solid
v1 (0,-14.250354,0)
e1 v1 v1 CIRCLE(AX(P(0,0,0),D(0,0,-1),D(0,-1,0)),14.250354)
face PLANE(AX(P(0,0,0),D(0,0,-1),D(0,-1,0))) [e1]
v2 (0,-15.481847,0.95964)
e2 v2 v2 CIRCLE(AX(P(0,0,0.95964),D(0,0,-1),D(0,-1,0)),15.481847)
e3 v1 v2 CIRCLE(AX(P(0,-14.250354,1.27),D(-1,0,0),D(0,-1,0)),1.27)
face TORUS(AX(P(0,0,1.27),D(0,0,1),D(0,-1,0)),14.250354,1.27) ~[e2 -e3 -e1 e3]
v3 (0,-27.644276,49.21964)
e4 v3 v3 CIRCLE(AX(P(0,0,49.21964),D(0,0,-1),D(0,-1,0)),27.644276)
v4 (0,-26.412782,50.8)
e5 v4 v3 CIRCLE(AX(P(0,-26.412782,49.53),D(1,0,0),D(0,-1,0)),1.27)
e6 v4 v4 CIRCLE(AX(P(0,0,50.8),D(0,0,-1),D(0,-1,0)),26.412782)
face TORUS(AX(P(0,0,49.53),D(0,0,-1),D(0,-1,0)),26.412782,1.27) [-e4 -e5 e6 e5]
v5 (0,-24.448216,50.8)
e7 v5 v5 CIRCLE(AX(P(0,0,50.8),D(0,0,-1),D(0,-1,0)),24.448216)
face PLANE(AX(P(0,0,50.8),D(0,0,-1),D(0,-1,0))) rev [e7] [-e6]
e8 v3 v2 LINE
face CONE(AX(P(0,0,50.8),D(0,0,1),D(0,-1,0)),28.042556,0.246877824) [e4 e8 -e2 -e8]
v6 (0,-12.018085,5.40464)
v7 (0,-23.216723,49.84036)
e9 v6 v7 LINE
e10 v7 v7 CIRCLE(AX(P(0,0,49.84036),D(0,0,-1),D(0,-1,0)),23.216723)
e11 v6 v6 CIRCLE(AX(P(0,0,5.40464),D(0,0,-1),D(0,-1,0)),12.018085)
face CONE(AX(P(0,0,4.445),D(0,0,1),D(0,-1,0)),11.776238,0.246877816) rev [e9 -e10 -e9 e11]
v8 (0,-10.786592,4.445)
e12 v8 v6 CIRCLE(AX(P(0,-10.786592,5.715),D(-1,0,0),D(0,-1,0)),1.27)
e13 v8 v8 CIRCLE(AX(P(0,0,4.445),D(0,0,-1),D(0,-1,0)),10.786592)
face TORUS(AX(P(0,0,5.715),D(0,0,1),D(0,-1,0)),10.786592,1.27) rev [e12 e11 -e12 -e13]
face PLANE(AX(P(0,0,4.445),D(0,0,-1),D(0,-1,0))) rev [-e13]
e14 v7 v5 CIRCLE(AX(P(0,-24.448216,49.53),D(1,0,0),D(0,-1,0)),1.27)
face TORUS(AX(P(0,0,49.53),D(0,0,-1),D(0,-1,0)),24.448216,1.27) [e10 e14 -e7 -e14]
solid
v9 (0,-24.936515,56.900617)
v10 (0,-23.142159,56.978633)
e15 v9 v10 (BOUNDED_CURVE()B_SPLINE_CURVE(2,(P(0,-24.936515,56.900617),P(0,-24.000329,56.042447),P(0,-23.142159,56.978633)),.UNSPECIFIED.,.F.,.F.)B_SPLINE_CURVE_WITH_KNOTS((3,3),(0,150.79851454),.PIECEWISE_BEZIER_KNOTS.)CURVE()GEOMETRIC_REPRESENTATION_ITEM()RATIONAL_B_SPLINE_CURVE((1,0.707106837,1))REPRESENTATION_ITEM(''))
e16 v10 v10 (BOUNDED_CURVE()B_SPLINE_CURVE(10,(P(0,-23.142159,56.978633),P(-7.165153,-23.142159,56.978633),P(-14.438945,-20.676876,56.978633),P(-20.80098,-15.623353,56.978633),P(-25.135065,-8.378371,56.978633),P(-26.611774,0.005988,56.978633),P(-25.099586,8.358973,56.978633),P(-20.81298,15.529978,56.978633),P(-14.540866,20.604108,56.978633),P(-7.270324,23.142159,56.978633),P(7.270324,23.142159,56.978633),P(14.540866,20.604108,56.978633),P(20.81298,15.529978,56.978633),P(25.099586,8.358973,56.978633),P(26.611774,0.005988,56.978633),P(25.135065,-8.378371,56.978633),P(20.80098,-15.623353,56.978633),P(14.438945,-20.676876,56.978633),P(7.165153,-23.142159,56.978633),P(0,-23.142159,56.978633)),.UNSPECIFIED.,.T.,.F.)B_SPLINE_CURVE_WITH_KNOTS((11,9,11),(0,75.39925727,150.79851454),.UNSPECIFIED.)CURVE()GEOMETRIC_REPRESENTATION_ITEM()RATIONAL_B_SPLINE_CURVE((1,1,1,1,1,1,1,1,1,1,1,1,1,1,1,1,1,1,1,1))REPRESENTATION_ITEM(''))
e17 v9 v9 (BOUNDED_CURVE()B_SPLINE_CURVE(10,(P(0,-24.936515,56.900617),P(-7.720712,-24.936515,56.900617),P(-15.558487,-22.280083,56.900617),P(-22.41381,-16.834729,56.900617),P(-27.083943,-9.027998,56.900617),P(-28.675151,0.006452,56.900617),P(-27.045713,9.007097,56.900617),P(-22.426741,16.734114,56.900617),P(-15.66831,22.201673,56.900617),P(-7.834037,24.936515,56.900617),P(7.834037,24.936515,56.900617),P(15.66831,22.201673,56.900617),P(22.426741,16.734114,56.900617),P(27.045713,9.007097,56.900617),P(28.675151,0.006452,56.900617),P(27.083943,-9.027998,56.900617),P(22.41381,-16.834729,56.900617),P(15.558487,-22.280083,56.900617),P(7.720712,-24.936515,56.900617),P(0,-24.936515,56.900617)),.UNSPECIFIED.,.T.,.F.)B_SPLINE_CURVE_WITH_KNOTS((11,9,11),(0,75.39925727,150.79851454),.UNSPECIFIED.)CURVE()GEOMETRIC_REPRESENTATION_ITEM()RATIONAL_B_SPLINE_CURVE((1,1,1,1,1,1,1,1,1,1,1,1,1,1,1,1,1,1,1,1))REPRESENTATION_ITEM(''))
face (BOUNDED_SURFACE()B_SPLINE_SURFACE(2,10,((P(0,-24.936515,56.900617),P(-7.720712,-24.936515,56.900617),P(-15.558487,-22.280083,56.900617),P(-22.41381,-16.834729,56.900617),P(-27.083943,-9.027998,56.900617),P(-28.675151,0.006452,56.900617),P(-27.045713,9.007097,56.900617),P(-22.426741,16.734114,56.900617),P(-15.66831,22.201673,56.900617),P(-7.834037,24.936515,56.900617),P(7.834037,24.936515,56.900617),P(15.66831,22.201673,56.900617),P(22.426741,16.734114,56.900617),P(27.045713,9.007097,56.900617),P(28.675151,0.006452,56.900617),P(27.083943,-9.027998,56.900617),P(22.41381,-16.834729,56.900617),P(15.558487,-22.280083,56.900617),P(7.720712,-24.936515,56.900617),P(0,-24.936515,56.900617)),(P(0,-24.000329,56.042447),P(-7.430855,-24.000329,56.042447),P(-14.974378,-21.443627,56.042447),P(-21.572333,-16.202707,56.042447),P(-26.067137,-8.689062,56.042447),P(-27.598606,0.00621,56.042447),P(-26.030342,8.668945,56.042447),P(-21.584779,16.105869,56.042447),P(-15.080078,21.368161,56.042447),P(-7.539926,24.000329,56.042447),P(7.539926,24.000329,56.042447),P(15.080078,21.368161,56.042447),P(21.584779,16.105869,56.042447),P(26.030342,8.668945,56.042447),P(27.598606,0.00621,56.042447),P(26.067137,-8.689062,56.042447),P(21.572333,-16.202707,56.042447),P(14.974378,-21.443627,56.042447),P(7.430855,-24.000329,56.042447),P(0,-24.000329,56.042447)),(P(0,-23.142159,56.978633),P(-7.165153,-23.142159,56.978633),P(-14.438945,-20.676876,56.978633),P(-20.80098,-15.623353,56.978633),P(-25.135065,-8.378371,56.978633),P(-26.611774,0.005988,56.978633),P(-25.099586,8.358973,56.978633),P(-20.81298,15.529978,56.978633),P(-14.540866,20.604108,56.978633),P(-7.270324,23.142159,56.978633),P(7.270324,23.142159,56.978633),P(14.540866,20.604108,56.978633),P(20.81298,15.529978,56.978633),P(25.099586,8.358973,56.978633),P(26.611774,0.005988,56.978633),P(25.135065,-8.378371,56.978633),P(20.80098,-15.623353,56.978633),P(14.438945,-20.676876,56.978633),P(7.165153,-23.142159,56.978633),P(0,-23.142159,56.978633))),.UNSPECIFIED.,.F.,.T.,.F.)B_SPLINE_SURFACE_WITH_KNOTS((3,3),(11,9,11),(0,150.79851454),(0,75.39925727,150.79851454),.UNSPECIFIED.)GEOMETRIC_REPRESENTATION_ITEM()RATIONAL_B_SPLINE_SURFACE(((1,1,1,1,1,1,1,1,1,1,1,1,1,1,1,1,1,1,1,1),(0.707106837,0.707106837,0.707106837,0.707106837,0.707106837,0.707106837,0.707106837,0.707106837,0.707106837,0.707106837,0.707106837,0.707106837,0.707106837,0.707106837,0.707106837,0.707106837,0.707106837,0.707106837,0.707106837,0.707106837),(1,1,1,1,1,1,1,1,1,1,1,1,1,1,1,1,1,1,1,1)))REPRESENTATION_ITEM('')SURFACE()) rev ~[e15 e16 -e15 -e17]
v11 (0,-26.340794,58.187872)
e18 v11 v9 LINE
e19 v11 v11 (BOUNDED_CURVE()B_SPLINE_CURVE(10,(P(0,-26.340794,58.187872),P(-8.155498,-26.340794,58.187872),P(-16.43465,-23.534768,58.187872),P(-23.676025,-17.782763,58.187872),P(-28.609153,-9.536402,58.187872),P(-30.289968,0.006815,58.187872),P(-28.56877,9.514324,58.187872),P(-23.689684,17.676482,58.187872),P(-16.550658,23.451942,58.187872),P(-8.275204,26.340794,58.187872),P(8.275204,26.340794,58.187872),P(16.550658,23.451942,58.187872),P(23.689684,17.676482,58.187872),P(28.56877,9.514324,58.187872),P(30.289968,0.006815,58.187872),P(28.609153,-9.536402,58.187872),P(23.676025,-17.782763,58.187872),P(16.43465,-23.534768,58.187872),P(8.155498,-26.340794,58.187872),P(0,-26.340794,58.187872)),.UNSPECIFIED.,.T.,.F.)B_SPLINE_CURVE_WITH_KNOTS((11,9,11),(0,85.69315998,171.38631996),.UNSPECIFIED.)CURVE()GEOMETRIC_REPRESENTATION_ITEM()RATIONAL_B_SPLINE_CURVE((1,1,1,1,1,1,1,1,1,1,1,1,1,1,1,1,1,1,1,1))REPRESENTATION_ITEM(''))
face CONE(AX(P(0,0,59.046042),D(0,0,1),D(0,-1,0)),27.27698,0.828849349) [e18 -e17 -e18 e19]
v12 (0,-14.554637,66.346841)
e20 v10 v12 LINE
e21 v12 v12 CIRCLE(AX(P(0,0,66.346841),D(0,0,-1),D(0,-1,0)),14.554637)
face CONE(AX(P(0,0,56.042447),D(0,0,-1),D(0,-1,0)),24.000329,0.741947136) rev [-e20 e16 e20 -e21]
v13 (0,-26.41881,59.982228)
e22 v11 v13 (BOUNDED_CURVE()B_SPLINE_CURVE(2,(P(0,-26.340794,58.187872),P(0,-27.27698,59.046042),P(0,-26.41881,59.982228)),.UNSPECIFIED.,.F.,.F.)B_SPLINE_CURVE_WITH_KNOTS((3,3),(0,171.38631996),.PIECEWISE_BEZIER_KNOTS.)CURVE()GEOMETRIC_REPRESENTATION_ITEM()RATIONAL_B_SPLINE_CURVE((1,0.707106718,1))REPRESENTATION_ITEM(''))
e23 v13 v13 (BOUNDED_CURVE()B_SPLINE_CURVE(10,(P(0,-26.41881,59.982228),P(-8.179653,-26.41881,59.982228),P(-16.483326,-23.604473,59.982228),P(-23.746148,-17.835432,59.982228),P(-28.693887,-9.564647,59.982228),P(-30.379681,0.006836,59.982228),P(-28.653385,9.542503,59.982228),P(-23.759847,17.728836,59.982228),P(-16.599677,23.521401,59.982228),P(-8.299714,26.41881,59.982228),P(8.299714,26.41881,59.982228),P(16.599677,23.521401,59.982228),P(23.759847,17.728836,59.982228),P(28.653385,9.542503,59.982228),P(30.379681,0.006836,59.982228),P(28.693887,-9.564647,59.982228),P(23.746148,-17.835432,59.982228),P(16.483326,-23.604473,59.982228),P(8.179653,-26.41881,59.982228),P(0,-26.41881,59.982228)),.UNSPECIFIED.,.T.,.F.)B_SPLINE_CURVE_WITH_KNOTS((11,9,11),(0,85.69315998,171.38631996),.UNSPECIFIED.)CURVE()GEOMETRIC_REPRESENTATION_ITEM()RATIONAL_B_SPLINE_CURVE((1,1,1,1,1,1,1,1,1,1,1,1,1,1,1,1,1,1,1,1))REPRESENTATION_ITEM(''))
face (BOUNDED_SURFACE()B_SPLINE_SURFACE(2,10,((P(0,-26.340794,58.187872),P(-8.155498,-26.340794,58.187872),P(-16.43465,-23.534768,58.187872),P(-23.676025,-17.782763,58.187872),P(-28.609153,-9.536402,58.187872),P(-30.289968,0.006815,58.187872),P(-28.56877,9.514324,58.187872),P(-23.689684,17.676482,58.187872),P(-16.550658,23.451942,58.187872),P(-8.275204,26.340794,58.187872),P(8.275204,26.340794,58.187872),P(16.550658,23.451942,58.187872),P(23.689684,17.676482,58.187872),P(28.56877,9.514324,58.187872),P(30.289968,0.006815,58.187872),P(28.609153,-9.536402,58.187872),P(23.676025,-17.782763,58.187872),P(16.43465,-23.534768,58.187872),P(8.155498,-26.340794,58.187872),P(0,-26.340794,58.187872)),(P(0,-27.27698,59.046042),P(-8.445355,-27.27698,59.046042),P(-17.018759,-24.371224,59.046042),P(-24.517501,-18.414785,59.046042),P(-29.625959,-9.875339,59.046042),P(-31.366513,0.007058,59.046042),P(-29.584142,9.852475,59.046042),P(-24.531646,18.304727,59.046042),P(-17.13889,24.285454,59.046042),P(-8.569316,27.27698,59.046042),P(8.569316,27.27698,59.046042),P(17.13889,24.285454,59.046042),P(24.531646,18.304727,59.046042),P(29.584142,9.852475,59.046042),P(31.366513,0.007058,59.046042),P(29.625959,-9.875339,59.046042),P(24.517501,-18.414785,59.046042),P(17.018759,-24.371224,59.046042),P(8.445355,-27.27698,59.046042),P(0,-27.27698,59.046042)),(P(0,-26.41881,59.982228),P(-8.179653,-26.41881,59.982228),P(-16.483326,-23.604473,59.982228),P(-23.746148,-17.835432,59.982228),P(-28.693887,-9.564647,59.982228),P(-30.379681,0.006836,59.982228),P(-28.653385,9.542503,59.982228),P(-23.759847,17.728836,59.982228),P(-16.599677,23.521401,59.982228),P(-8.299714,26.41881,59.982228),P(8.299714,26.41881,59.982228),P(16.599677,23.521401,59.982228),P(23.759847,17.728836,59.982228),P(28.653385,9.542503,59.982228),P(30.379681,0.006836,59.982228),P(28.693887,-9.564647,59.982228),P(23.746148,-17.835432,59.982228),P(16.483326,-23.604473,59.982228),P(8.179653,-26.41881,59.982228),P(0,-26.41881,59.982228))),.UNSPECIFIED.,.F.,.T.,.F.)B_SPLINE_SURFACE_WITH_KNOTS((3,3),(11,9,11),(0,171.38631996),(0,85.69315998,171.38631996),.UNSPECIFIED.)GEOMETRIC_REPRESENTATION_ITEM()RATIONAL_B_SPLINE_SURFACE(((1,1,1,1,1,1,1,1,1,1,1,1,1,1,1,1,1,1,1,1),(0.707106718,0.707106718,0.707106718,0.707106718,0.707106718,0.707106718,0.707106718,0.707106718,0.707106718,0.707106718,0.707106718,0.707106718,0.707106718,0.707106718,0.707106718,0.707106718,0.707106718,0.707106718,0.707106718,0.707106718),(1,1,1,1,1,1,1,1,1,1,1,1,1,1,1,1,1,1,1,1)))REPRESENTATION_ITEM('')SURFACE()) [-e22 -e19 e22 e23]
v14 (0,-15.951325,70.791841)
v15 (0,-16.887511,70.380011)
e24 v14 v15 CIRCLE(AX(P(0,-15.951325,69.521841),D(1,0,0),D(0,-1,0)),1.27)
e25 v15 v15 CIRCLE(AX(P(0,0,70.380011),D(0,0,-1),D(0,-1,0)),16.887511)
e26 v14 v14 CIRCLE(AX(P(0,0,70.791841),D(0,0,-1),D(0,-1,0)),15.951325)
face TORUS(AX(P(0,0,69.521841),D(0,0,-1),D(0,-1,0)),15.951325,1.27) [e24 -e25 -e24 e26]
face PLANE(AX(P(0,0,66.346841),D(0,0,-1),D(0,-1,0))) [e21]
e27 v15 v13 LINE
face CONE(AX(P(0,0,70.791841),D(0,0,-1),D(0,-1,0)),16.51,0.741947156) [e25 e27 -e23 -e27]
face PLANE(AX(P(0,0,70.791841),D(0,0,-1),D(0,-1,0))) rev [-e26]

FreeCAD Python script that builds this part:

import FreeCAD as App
import Part
import Sketcher
from FreeCAD import Vector
Q = App.Units.Quantity


def edges_at(feature, points):
    """Names of the edges that pass closest to the given points."""
    edges = feature.Shape.Edges
    near = lambda p: min(range(len(edges)), key=lambda i: edges[i].distToShape(Part.Vertex(*p))[0])
    return sorted({f"Edge{near(p) + 1}" for p in points})


def add_polygon(sketch, points):
    """Adds a closed chain of lines whose ends are joined by coincident constraints."""
    first, n = sketch.GeometryCount, len(points)
    for a, b in zip(points, points[1:] + points[:1]):
        sketch.addGeometry(Part.LineSegment(App.Vector(*a, 0), App.Vector(*b, 0)), False)
    for i in range(n):
        sketch.addConstraint(Sketcher.Constraint("Coincident", first + i, 2, first + (i + 1) % n, 1))

doc = App.newDocument("Part")
body = doc.addObject("PartDesign::Body", "Body")
body.AllowCompound = True

sketch1 = body.newObject("Sketcher::SketchObject", "Sketch")
sketch1.AttachmentSupport = (doc.getObject("YZ_Plane"), [""])
sketch1.MapMode = "FlatFace"
add_polygon(sketch1, [(-15.2, 0), (0, 0), (0, 4.4), (-11.8, 4.4), (-23.5, 50.8), (-28, 50.8)])
add_polygon(sketch1, [(-27.3, 59), (-24, 56), (-14.6, 66.3), (0, 66.3), (0, 70.8), (-16.5, 70.8)])
sketch1.addConstraint(Sketcher.Constraint("Horizontal", 0))
sketch1.addConstraint(Sketcher.Constraint("Vertical", 1))
sketch1.addConstraint(Sketcher.Constraint("Horizontal", 2))
sketch1.addConstraint(Sketcher.Constraint("Horizontal", 4))
sketch1.addConstraint(Sketcher.Constraint("Horizontal", 8))
sketch1.addConstraint(Sketcher.Constraint("Vertical", 9))
sketch1.addConstraint(Sketcher.Constraint("Horizontal", 10))
sketch1.addConstraint(Sketcher.Constraint("Coincident", 0, 2, -1, 1))
sketch1.addConstraint(Sketcher.Constraint("PointOnObject", 8, 2, -2))
sketch1.addConstraint(Sketcher.Constraint("Parallel", 3, 5))
sketch1.addConstraint(Sketcher.Constraint("Perpendicular", 6, 7))
sketch1.addConstraint(Sketcher.Constraint("Parallel", 7, 11))
sketch1.addConstraint(Sketcher.Constraint("Equal", 1, 9))
sketch1.addConstraint(Sketcher.Constraint("DistanceX", 0, 1, 0, 2, Q("0.6 in")))
sketch1.addConstraint(Sketcher.Constraint("DistanceY", -1, 1, 3, 2, Q("2 in")))
sketch1.addConstraint(Sketcher.Constraint("DistanceX", 10, 2, 10, 1, Q("0.65 in")))
sketch1.addConstraint(Sketcher.Constraint("DistanceY", 1, 1, 1, 2, Q("0.175 in")))
sketch1.addConstraint(Sketcher.Constraint("Distance", 6, Q("0.175 in")))
sketch1.addConstraint(Sketcher.Constraint("DistanceX", 7, 2, 2, 2, Q("2.778399 mm")))
sketch1.addConstraint(Sketcher.Constraint("DistanceY", 11, 2, 7, 2, Q("7.300799 mm")))
sketch1.addConstraint(Sketcher.Constraint("Distance", 5, Q("52.388409 mm")))
sketch1.addConstraint(Sketcher.Constraint("DistanceX", 2, 2, 2, 1, Q("11.776238 mm")))
sketch1.addConstraint(Sketcher.Constraint("DistanceY", -1, 1, 7, 2, Q("66.346841 mm")))
revolution = body.newObject("PartDesign::Revolution", "Revolution")
revolution.Profile = sketch1
revolution.ReferenceAxis = (sketch1, ["V_Axis"])
revolution.Angle = 360
doc.recompute()

fillet = body.newObject("PartDesign::Fillet", "Fillet")
fillet.Base = (revolution, edges_at(revolution, [
    (0, 28.043, 50.8),
    (0, 23.459, 50.8),
    (0, 11.776, 4.445),
    (0, 15.24, 0),
    (0, 27.277, 59.046),
    (0, 24, 56.042),
    (0, 16.51, 70.792),
]))
fillet.Radius = Q("0.05 in")

doc.recompute()
